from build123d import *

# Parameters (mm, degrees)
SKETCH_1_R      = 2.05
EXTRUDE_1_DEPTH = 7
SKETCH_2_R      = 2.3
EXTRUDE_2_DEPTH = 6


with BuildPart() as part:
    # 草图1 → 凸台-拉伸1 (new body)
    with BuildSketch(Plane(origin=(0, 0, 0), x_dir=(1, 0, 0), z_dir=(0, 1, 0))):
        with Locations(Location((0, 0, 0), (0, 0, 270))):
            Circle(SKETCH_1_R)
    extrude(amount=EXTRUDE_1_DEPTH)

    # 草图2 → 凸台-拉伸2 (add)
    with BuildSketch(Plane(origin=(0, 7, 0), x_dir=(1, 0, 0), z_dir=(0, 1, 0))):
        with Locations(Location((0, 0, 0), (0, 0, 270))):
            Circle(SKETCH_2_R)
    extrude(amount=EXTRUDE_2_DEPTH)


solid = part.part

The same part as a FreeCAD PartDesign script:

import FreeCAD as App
import Part
import Sketcher
from FreeCAD import Vector
Q = App.Units.Quantity

doc = App.newDocument("Part")
body = doc.addObject("PartDesign::Body", "Body")

# Sketch on XZ plane
sketch1 = body.newObject("Sketcher::SketchObject", "Sketch")
sketch1.AttachmentSupport = (doc.getObject("XZ_Plane"), [""])
sketch1.MapMode = "FlatFace"
sketch1.addGeometry(Part.Circle(Vector(0, 0, 0), Vector(0, 0, 1), 2), False)
sketch1.addConstraint(Sketcher.Constraint("Coincident", 0, 3, -1, 1))
sketch1.addConstraint(Sketcher.Constraint("Diameter", 0, Q("4.1 mm")))
pad1 = body.newObject("PartDesign::Pad", "Pad")
pad1.Profile = sketch1
pad1.Length = 7
pad1.Reversed = True

# Sketch on XZ plane
sketch2 = body.newObject("Sketcher::SketchObject", "Sketch001")
sketch2.AttachmentSupport = (doc.getObject("XZ_Plane"), [""])
sketch2.MapMode = "FlatFace"
sketch2.AttachmentOffset = App.Placement(Vector(0, 0, -7), App.Rotation())
sketch2.addGeometry(Part.Circle(Vector(0, 0, 0), Vector(0, 0, 1), 2.3), False)
sketch2.addConstraint(Sketcher.Constraint("Coincident", 0, 3, -1, 1))
sketch2.addConstraint(Sketcher.Constraint("Diameter", 0, Q("4.6 mm")))
pad2 = body.newObject("PartDesign::Pad", "Pad001")
pad2.Profile = sketch2
pad2.Length = 6
pad2.Reversed = True

doc.recompute()
